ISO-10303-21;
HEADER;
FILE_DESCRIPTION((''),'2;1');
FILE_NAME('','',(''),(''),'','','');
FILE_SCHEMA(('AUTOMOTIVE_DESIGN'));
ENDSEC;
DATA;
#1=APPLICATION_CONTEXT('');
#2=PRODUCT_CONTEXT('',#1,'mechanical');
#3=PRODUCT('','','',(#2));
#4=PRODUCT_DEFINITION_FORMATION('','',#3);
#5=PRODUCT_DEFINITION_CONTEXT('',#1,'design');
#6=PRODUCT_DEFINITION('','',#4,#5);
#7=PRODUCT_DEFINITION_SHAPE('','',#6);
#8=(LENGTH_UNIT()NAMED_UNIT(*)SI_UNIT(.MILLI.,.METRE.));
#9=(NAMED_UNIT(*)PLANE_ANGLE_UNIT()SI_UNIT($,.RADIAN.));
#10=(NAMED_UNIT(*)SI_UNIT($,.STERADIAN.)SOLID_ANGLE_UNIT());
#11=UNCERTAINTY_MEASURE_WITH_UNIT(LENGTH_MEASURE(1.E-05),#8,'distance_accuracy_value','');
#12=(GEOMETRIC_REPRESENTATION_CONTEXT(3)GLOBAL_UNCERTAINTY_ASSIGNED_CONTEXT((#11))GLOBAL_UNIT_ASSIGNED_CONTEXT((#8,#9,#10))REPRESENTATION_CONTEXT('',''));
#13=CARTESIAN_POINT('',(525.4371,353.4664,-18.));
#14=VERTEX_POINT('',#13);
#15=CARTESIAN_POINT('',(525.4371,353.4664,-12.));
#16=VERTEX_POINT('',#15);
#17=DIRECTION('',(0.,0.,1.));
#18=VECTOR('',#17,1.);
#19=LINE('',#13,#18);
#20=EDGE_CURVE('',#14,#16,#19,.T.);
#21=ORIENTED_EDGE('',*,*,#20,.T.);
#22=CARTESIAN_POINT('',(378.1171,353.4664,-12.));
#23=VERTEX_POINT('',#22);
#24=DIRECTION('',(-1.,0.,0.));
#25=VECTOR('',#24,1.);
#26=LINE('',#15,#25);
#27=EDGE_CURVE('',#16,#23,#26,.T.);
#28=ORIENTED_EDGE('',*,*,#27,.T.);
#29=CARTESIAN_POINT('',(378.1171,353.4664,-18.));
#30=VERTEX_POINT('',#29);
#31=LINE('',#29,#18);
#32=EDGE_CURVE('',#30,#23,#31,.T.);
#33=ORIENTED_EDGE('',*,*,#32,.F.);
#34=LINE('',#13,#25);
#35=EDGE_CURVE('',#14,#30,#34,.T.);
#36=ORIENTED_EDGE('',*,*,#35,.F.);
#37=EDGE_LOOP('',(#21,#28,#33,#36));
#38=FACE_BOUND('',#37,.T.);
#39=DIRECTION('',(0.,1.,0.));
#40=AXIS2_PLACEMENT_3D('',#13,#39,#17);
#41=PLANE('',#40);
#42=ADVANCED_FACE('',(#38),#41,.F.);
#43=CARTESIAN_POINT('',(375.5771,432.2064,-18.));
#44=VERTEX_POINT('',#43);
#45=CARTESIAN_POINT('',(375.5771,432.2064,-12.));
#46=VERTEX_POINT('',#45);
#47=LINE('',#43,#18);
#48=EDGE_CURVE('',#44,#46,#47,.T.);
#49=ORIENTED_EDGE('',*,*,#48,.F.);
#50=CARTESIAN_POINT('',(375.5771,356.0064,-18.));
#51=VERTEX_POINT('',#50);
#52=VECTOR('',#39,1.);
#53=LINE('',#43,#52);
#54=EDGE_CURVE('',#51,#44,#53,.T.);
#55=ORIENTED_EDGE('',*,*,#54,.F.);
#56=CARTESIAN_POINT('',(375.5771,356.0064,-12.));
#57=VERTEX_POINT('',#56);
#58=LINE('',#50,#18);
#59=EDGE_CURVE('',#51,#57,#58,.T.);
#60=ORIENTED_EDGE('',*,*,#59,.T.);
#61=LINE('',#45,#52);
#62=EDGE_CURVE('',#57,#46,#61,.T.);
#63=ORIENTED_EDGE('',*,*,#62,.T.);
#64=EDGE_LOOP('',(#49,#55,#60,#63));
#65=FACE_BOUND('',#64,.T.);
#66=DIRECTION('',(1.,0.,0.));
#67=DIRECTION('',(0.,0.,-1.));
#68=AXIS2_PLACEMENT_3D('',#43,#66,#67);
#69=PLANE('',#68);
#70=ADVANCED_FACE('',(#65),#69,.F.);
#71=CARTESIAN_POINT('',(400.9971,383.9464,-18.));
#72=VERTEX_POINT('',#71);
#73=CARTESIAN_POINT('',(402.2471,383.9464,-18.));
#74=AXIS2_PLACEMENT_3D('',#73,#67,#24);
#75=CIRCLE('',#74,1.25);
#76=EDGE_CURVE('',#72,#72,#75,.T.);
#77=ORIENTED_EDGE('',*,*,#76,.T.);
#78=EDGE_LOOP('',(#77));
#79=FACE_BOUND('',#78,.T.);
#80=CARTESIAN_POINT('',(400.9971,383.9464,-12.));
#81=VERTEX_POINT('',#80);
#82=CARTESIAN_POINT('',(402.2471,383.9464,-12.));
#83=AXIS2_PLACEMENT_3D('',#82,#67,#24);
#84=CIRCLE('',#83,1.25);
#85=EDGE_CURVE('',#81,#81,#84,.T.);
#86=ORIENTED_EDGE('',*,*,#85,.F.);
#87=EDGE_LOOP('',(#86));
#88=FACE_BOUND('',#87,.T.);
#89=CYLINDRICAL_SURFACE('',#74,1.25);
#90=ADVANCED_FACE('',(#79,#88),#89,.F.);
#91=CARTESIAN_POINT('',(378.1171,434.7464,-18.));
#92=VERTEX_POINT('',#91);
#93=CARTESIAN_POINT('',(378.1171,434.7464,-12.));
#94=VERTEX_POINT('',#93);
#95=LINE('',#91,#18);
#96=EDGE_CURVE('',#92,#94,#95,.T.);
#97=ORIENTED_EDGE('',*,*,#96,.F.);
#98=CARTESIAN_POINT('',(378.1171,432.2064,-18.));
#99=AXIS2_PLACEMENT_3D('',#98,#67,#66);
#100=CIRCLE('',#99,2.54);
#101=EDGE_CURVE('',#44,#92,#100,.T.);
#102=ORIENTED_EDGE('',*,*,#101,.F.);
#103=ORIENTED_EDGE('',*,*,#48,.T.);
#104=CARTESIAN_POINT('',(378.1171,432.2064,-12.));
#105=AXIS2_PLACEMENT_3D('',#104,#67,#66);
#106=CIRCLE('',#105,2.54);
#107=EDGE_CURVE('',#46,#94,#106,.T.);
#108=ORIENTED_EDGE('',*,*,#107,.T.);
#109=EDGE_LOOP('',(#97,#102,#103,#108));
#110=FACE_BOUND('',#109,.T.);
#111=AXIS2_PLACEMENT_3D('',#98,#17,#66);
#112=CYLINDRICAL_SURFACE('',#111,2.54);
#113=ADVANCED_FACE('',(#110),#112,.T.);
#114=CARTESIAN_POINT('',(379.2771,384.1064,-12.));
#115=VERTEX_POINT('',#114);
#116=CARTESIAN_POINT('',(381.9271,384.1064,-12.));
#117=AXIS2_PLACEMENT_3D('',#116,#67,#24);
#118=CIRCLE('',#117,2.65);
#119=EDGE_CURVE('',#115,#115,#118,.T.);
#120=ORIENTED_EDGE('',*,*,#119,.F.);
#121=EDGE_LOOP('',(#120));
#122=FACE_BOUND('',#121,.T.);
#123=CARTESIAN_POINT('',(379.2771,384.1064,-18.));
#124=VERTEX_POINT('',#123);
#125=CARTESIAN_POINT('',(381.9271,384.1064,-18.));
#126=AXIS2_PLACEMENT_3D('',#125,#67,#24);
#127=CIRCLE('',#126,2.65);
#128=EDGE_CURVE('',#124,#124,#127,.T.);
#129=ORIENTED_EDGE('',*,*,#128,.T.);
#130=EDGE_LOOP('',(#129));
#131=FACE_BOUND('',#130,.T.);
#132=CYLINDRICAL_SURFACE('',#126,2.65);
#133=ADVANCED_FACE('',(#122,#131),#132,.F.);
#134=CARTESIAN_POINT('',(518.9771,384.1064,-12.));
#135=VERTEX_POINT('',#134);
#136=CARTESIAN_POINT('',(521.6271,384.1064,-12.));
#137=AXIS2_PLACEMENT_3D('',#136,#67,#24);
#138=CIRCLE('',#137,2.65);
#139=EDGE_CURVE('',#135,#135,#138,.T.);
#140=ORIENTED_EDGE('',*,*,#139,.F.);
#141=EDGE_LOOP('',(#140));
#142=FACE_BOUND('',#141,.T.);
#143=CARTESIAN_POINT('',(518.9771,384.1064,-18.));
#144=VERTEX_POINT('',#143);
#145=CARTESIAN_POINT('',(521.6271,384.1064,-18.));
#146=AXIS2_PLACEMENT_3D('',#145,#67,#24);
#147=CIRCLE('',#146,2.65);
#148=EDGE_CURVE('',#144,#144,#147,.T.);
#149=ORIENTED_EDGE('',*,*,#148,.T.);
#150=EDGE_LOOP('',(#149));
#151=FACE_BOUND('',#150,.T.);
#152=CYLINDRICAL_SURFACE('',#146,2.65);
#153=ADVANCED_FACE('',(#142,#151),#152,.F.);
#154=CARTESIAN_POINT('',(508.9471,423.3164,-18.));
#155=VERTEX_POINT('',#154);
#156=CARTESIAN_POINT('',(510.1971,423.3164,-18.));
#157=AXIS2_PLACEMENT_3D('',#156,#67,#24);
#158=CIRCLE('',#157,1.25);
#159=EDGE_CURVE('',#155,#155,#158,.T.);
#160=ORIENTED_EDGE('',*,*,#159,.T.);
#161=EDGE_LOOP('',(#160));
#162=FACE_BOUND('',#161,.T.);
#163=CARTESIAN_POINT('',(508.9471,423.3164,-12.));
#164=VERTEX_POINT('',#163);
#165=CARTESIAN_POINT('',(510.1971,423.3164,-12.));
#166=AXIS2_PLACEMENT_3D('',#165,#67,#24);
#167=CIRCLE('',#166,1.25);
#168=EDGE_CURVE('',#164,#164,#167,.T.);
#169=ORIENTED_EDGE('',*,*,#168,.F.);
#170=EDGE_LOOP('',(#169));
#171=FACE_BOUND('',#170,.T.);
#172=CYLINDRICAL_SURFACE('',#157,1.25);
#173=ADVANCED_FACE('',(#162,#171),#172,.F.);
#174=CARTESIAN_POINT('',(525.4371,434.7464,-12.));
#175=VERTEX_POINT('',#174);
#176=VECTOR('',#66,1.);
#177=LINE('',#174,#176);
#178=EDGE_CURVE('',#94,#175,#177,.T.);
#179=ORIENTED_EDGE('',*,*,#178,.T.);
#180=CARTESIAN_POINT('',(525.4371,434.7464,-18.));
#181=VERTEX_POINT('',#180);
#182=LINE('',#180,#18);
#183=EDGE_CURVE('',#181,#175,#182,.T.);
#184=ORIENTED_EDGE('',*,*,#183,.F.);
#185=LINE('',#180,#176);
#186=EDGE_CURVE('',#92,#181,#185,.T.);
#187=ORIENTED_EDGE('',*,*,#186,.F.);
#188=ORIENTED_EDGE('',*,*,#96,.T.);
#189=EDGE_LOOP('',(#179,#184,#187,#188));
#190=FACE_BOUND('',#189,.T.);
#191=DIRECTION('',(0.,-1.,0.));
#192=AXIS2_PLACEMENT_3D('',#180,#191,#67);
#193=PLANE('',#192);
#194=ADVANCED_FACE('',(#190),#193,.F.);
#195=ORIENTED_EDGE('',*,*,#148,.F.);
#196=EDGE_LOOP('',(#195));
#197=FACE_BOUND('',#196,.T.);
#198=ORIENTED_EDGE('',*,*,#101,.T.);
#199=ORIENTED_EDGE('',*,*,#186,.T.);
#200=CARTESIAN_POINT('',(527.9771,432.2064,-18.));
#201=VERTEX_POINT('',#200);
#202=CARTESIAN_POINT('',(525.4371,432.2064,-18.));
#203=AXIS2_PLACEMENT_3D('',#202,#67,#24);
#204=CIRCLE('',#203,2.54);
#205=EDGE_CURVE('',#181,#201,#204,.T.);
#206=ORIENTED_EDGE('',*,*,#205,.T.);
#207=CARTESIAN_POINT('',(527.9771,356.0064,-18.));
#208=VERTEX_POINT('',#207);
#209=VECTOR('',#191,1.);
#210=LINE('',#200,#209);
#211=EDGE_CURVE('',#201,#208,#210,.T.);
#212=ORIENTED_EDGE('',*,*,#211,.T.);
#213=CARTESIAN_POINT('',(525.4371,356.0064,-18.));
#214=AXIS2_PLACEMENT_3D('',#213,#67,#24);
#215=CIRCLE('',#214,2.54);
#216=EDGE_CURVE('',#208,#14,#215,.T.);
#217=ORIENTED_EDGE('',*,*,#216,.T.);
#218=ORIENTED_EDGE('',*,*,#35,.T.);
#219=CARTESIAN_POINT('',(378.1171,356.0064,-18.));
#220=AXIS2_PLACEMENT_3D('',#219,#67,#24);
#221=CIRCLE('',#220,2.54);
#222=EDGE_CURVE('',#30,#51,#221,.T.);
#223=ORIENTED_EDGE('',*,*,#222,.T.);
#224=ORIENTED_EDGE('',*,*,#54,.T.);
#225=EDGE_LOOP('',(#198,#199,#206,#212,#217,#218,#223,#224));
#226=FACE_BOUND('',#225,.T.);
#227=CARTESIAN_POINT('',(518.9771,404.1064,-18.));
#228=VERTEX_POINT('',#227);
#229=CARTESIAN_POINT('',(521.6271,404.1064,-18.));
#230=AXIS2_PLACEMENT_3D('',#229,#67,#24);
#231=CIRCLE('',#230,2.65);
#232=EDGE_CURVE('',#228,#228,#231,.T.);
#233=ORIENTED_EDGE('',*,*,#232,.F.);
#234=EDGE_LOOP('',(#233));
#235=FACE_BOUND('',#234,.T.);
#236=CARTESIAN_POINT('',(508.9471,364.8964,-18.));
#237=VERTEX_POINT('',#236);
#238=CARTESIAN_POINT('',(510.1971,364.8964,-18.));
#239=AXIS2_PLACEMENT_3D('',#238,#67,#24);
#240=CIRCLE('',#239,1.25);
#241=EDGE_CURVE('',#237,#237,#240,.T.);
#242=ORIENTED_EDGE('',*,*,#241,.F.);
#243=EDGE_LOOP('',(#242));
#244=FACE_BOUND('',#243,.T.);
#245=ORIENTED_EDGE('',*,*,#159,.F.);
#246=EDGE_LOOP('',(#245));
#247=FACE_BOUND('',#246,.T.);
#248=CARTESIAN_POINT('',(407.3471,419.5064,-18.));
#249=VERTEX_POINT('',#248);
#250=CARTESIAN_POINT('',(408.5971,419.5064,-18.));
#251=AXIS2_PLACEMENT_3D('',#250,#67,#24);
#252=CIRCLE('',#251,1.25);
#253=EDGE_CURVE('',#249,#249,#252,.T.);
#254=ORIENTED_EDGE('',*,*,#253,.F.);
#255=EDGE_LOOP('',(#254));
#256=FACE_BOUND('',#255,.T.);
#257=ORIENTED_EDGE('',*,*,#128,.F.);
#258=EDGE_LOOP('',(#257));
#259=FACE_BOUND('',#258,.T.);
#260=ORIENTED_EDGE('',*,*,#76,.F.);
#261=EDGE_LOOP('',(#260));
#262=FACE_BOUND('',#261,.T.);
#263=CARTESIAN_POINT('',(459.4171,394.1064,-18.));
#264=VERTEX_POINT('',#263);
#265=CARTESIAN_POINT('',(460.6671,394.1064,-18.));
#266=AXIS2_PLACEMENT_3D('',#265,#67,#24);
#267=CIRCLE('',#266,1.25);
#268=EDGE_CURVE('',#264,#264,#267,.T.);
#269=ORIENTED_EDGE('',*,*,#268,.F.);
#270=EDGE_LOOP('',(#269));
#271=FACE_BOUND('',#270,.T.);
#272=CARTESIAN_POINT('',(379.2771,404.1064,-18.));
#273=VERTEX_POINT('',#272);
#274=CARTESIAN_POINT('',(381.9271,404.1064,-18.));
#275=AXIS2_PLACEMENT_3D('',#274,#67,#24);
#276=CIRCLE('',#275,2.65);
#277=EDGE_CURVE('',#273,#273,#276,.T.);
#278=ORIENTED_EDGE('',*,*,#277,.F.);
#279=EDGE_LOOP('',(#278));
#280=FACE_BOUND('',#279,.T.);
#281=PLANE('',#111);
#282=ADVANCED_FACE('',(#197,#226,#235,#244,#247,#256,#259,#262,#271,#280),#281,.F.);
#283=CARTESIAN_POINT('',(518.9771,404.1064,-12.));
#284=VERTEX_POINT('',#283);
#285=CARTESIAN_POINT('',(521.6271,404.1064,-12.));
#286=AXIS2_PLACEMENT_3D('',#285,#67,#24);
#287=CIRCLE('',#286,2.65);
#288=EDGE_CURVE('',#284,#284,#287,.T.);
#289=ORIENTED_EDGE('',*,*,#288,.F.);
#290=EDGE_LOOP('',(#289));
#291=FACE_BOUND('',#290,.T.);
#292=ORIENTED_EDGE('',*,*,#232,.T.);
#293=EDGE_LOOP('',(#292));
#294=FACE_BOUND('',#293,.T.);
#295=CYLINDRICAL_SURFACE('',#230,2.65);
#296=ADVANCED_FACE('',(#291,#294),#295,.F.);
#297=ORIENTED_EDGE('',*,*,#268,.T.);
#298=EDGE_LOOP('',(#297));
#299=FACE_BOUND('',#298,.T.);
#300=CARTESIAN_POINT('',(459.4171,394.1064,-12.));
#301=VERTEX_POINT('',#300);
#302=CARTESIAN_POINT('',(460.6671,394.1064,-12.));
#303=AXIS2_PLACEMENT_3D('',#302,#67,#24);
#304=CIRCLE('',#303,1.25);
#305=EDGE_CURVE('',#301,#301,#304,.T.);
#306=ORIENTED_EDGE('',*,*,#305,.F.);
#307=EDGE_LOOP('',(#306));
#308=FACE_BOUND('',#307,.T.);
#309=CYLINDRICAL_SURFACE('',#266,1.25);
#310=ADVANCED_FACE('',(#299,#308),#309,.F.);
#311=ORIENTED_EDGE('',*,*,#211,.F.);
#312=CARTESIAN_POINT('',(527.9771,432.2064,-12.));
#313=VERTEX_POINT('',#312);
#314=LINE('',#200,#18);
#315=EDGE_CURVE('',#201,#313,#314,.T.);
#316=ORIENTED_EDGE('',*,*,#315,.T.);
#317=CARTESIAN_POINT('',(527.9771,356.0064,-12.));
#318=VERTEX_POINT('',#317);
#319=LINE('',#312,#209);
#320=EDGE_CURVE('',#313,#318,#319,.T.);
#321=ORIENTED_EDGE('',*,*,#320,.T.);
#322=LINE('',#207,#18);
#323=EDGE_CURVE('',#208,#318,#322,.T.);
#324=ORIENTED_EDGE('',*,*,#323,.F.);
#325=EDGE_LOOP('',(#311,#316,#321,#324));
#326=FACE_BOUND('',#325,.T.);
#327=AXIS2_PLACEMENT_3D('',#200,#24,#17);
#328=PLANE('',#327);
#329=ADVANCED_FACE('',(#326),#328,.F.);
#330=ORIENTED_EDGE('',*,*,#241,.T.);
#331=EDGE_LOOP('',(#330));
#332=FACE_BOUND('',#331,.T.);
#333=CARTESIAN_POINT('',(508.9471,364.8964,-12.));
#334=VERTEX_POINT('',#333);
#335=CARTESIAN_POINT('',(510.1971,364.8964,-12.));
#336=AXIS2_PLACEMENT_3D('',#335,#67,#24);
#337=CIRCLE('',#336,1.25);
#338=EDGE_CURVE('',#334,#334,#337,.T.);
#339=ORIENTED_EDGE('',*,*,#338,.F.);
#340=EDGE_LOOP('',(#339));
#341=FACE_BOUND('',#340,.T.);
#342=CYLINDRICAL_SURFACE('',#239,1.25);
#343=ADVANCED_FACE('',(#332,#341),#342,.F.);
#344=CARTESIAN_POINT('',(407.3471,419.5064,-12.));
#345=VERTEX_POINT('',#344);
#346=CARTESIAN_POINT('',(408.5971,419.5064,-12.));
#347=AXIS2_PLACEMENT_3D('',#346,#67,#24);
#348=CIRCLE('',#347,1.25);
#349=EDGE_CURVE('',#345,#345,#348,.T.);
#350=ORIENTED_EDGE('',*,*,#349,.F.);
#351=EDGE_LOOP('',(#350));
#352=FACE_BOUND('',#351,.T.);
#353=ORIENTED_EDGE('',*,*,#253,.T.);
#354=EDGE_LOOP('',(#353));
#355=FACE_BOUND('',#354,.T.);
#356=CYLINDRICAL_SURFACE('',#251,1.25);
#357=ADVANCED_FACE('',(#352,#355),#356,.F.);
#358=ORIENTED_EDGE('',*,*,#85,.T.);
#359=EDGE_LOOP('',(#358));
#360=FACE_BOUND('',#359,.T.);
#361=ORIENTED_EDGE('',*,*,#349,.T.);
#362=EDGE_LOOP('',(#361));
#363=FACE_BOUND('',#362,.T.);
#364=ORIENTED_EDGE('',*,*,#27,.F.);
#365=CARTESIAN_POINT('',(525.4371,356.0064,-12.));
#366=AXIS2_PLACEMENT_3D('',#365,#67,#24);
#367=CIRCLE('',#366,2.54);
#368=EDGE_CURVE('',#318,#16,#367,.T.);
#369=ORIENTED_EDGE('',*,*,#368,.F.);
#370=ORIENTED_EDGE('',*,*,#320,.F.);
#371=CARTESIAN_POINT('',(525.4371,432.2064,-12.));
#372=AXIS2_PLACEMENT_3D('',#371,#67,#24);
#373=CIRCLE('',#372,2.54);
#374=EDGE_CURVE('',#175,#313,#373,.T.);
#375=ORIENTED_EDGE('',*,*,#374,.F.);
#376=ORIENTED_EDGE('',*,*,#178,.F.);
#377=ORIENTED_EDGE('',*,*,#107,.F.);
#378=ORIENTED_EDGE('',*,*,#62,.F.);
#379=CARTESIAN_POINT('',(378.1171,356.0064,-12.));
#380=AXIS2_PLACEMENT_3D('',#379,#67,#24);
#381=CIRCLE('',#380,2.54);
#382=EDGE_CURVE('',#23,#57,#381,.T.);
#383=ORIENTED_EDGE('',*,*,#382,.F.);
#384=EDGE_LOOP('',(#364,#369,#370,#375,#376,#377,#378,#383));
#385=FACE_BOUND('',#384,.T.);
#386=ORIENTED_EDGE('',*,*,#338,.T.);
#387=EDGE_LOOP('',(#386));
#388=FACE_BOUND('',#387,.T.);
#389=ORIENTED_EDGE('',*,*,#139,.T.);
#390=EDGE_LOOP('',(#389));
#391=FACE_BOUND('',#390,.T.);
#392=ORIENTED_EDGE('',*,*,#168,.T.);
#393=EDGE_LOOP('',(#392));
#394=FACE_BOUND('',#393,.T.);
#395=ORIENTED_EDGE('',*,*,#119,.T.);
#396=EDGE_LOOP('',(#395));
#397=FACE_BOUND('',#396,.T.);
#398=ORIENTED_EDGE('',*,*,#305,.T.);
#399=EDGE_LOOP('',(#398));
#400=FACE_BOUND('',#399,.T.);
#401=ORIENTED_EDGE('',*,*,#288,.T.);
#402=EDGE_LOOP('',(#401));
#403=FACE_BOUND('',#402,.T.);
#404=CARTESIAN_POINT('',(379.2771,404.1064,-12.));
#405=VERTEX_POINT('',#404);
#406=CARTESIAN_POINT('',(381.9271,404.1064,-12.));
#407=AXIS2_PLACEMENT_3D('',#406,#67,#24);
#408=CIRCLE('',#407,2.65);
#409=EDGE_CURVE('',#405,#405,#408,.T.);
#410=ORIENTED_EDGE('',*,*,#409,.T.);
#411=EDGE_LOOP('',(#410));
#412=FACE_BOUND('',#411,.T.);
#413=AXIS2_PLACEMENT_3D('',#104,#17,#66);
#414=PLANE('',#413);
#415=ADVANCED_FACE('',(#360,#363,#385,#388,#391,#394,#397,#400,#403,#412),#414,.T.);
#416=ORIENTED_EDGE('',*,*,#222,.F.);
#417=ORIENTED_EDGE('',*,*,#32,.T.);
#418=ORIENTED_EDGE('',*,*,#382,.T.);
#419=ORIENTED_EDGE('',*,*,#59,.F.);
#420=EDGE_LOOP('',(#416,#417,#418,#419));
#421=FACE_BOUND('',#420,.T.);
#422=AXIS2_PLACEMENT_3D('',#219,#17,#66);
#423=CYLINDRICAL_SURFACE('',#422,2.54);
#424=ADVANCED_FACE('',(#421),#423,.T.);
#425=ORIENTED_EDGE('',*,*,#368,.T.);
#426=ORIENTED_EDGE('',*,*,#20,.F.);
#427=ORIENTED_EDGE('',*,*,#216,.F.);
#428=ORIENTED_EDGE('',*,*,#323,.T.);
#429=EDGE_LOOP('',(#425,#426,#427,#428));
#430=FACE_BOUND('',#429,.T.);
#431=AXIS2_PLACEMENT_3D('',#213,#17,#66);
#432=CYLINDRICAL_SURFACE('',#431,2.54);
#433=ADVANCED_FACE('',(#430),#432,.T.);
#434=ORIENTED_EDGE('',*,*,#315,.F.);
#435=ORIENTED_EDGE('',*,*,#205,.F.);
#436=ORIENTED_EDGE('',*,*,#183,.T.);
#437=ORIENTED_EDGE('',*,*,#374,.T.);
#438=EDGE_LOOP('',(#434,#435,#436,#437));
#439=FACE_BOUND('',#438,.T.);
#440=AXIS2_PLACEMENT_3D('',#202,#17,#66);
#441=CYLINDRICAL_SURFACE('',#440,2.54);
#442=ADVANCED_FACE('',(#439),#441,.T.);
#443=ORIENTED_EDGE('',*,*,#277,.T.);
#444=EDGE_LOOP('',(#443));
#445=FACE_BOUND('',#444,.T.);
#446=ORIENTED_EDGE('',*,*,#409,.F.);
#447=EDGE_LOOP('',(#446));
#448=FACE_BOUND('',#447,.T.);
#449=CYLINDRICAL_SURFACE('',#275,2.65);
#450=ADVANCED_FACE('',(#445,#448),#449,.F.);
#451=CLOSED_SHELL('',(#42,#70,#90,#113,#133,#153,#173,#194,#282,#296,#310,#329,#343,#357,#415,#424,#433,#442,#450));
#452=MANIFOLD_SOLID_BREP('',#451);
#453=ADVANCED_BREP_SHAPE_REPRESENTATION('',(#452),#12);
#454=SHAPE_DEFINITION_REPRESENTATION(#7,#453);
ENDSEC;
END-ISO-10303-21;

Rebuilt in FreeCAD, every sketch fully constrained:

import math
import FreeCAD as App
import Part
import Sketcher

V = App.Vector
Q = App.Units.Quantity

doc = App.newDocument("Part")
body = doc.addObject("PartDesign::Body", "Body")

# Sketch on XY plane
sketch1 = doc.addObject("Sketcher::SketchObject", "Sketch")
body.addObject(sketch1)
sketch1.AttachmentSupport = (doc.XY_Plane, [""])
sketch1.MapMode = "FlatFace"
sketch1.AttachmentOffset = App.Placement(V(0, 0, -12), App.Rotation())
sketch1.addGeometry([
    Part.LineSegment(V(378.1, 434.7, 0), V(525.4, 434.7, 0)),  # 0
    Part.ArcOfCircle(Part.Circle(V(525.4, 432.2, 0), V(0, 0, 1), 2.5), math.radians(0), math.radians(90)),  # 1
    Part.LineSegment(V(528, 432.2, 0), V(528, 356, 0)),  # 2
    Part.ArcOfCircle(Part.Circle(V(525.4, 356, 0), V(0, 0, 1), 2.5), math.radians(-90), math.radians(0)),  # 3
    Part.LineSegment(V(525.4, 353.5, 0), V(378.1, 353.5, 0)),  # 4
    Part.ArcOfCircle(Part.Circle(V(378.1, 356, 0), V(0, 0, 1), 2.5), math.radians(-180), math.radians(-90)),  # 5
    Part.LineSegment(V(375.6, 356, 0), V(375.6, 432.2, 0)),  # 6
    Part.ArcOfCircle(Part.Circle(V(378.1, 432.2, 0), V(0, 0, 1), 2.5), math.radians(90), math.radians(180)),  # 7
], False)
sketch1.addConstraint([
    Sketcher.Constraint("Tangent", 0, 2, 1, 2),
    Sketcher.Constraint("Tangent", 1, 1, 2, 1),
    Sketcher.Constraint("Tangent", 2, 2, 3, 2),
    Sketcher.Constraint("Tangent", 3, 1, 4, 1),
    Sketcher.Constraint("Tangent", 4, 2, 5, 2),
    Sketcher.Constraint("Tangent", 5, 1, 6, 1),
    Sketcher.Constraint("Tangent", 6, 2, 7, 2),
    Sketcher.Constraint("Tangent", 7, 1, 0, 1),
    Sketcher.Constraint("Horizontal", 0),
    Sketcher.Constraint("Vertical", 2),
    Sketcher.Constraint("Horizontal", 4),
    Sketcher.Constraint("Vertical", 6),
    Sketcher.Constraint("Equal", 1, 3),
    Sketcher.Constraint("Equal", 3, 5),
    Sketcher.Constraint("Equal", 5, 7),
    Sketcher.Constraint("Radius", 1, Q("2.54 mm")),
    Sketcher.Constraint("DistanceY", 2, 2, 2, 1, Q("76.2 mm")),
    Sketcher.Constraint("DistanceX", 0, 1, 0, 2, Q("147.32 mm")),
    Sketcher.Constraint("DistanceX", -1, 1, 1, 3, Q("525.4371 mm")),
    Sketcher.Constraint("DistanceY", -1, 1, 1, 3, Q("432.2064 mm")),
])
pad1 = doc.addObject("PartDesign::Pad", "Pad")
body.addObject(pad1)
pad1.Profile = sketch1
pad1.Length = 6
pad1.Reversed = True

# Sketch on XY plane
sketch2 = doc.addObject("Sketcher::SketchObject", "Sketch001")
body.addObject(sketch2)
sketch2.AttachmentSupport = (doc.XY_Plane, [""])
sketch2.MapMode = "FlatFace"
sketch2.AttachmentOffset = App.Placement(V(0, 0, -18), App.Rotation())
sketch2.addGeometry([
    Part.Circle(V(521.6, 404.1, 0), V(0, 0, 1), 2.6),
    Part.Circle(V(521.6, 384.1, 0), V(0, 0, 1), 2.6),
    Part.Circle(V(381.9, 384.1, 0), V(0, 0, 1), 2.6),
    Part.Circle(V(381.9, 404.1, 0), V(0, 0, 1), 2.6),
], False)
sketch2.addConstraint([
    Sketcher.Constraint("Equal", 0, 1),
    Sketcher.Constraint("Equal", 1, 2),
    Sketcher.Constraint("Equal", 2, 3),
    Sketcher.Constraint("Horizontal", 1, 3, 2, 3),
    Sketcher.Constraint("Horizontal", 0, 3, 3, 3),
    Sketcher.Constraint("Vertical", 0, 3, 1, 3),
    Sketcher.Constraint("Vertical", 2, 3, 3, 3),
    Sketcher.Constraint("Diameter", 0, Q("5.3 mm")),
    Sketcher.Constraint("DistanceY", 1, 3, 0, 3, Q("20 mm")),
    Sketcher.Constraint("DistanceX", 2, 3, 1, 3, Q("139.7 mm")),
    Sketcher.Constraint("DistanceX", -1, 1, 0, 3, Q("521.6271 mm")),
    Sketcher.Constraint("DistanceY", -1, 1, 0, 3, Q("404.1064 mm")),
])
doc.recompute()
hole = doc.addObject("PartDesign::Hole", "Hole")
body.addObject(hole)
hole.Profile = sketch2
hole.ThreadType = "None"
hole.Diameter = 5.3
hole.DepthType = "ThroughAll"
hole.Reversed = True

# Sketch on XY plane
sketch3 = doc.addObject("Sketcher::SketchObject", "Sketch002")
body.addObject(sketch3)
sketch3.AttachmentSupport = (doc.XY_Plane, [""])
sketch3.MapMode = "FlatFace"
sketch3.AttachmentOffset = App.Placement(V(0, 0, -18), App.Rotation())
sketch3.addGeometry([
    Part.Circle(V(510.2, 423.3, 0), V(0, 0, 1), 1.2),  # 0
    Part.Circle(V(408.6, 419.5, 0), V(0, 0, 1), 1.2),  # 1
    Part.Circle(V(460.7, 394.1, 0), V(0, 0, 1), 1.2),  # 2
    Part.Circle(V(402.2, 383.9, 0), V(0, 0, 1), 1.2),  # 3
    Part.Circle(V(510.2, 364.9, 0), V(0, 0, 1), 1.2),  # 4
], False)
sketch3.addConstraint([
    Sketcher.Constraint("Equal", 0, 1),
    Sketcher.Constraint("Equal", 1, 2),
    Sketcher.Constraint("Equal", 2, 3),
    Sketcher.Constraint("Equal", 3, 4),
    Sketcher.Constraint("Vertical", 0, 3, 4, 3),
    Sketcher.Constraint("Diameter", 0, Q("2.5 mm")),
    Sketcher.Constraint("DistanceX", 1, 3, 0, 3, Q("101.6 mm")),
    Sketcher.Constraint("DistanceY", 2, 3, 1, 3, Q("25.4 mm")),
    Sketcher.Constraint("DistanceY", 1, 3, 0, 3, Q("3.81 mm")),
    Sketcher.Constraint("DistanceX", 2, 3, 0, 3, Q("49.53 mm")),
    Sketcher.Constraint("DistanceX", 3, 3, 1, 3, Q("6.35 mm")),
    Sketcher.Constraint("DistanceY", 3, 3, 1, 3, Q("35.56 mm")),
    Sketcher.Constraint("DistanceY", 4, 3, 2, 3, Q("29.21 mm")),
    Sketcher.Constraint("DistanceX", -1, 1, 0, 3, Q("510.1971 mm")),
    Sketcher.Constraint("DistanceY", -1, 1, 0, 3, Q("423.3164 mm")),
])
doc.recompute()
hole2 = doc.addObject("PartDesign::Hole", "Hole001")
body.addObject(hole2)
hole2.Profile = sketch3
hole2.ThreadType = "None"
hole2.Diameter = 2.5
hole2.DepthType = "ThroughAll"
hole2.Reversed = True

doc.recompute()
